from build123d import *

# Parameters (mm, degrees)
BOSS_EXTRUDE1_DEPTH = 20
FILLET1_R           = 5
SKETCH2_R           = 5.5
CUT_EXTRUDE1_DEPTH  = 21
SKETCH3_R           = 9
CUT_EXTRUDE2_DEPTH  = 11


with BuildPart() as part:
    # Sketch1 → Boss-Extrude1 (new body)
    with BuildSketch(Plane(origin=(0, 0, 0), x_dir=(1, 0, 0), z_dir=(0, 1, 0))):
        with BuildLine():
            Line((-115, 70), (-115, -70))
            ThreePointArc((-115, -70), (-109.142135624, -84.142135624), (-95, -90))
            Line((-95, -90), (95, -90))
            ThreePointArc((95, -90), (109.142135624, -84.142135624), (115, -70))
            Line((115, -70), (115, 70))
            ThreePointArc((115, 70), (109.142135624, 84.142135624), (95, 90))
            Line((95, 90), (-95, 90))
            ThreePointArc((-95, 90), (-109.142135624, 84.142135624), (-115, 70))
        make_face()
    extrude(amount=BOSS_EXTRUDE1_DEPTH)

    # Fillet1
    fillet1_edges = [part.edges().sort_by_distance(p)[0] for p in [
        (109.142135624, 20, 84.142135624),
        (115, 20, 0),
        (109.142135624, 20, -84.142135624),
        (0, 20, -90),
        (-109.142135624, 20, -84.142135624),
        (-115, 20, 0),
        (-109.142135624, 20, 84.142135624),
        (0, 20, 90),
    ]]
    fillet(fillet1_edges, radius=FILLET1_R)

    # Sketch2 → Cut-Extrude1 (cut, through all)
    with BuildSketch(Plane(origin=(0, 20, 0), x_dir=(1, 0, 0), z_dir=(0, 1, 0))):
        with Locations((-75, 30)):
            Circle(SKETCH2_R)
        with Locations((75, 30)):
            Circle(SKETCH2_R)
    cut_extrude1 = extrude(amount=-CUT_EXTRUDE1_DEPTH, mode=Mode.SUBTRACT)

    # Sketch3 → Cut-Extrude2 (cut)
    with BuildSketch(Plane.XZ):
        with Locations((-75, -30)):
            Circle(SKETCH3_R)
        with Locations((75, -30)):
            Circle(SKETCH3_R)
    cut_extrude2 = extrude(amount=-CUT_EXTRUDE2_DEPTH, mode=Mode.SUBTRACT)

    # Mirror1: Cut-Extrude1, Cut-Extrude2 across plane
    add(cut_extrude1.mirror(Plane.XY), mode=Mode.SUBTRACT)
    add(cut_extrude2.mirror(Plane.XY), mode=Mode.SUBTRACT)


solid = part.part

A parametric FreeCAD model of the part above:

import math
import FreeCAD as App
import Part
import Sketcher
Q = App.Units.Quantity


def edges_at(feature, points):
    """Names of the edges that pass closest to the given points."""
    edges = feature.Shape.Edges
    near = lambda p: min(range(len(edges)), key=lambda i: edges[i].distToShape(Part.Vertex(*p))[0])
    return sorted({f"Edge{near(p) + 1}" for p in points})

doc = App.newDocument("Part")
body = doc.addObject("PartDesign::Body", "Body")

sketch1 = body.newObject("Sketcher::SketchObject", "Sketch")
sketch1.AttachmentSupport = (doc.getObject("XZ_Plane"), [""])
sketch1.MapMode = "FlatFace"
sketch1.addGeometry([
    Part.LineSegment(App.Vector(-115, -70, 0), App.Vector(-115, 70, 0)),
    Part.ArcOfCircle(Part.Circle(App.Vector(-95, 70, 0), App.Vector(0, 0, 1), 20), math.radians(90), math.radians(180)),
    Part.LineSegment(App.Vector(-95, 90, 0), App.Vector(95, 90, 0)),
    Part.ArcOfCircle(Part.Circle(App.Vector(95, 70, 0), App.Vector(0, 0, 1), 20), math.radians(0), math.radians(90)),
    Part.LineSegment(App.Vector(115, 70, 0), App.Vector(115, -70, 0)),
    Part.ArcOfCircle(Part.Circle(App.Vector(95, -70, 0), App.Vector(0, 0, 1), 20), math.radians(-90), math.radians(0)),
    Part.LineSegment(App.Vector(95, -90, 0), App.Vector(-95, -90, 0)),
    Part.ArcOfCircle(Part.Circle(App.Vector(-95, -70, 0), App.Vector(0, 0, 1), 20), math.radians(180), math.radians(270)),
], False)
sketch1.addConstraint([
    Sketcher.Constraint("Tangent", 0, 2, 1, 2),
    Sketcher.Constraint("Tangent", 1, 1, 2, 1),
    Sketcher.Constraint("Tangent", 2, 2, 3, 2),
    Sketcher.Constraint("Tangent", 3, 1, 4, 1),
    Sketcher.Constraint("Tangent", 4, 2, 5, 2),
    Sketcher.Constraint("Tangent", 5, 1, 6, 1),
    Sketcher.Constraint("Tangent", 6, 2, 7, 2),
    Sketcher.Constraint("Tangent", 7, 1, 0, 1),
    Sketcher.Constraint("Vertical", 0),
    Sketcher.Constraint("Horizontal", 2),
    Sketcher.Constraint("Vertical", 4),
    Sketcher.Constraint("Horizontal", 6),
    Sketcher.Constraint("Equal", 1, 3),
    Sketcher.Constraint("Equal", 3, 5),
    Sketcher.Constraint("Equal", 5, 7),
    Sketcher.Constraint("Symmetric", 1, 3, 5, 3, -1, 1),
    Sketcher.Constraint("Radius", 1, Q("20 mm")),
    Sketcher.Constraint("DistanceX", 2, 1, 2, 2, Q("190 mm")),
    Sketcher.Constraint("DistanceY", 0, 1, 0, 2, Q("140 mm")),
])
pad1 = body.newObject("PartDesign::Pad", "Pad")
pad1.Profile = sketch1
pad1.Length = 20
pad1.Reversed = True
doc.recompute()

fillet = body.newObject("PartDesign::Fillet", "Fillet")
fillet.Base = (pad1, edges_at(pad1, [
    (109.142, 20, 84.142),
    (115, 20, 0),
    (109.142, 20, -84.142),
    (0, 20, -90),
    (-109.142, 20, -84.142),
    (-115, 20, 0),
    (-109.142, 20, 84.142),
    (0, 20, 90),
]))
fillet.Radius = 5

sketch2 = body.newObject("Sketcher::SketchObject", "Sketch001")
sketch2.AttachmentSupport = (doc.getObject("XZ_Plane"), [""])
sketch2.MapMode = "FlatFace"
sketch2.AttachmentOffset = App.Placement(App.Vector(0, 0, -20), App.Rotation())
sketch2.addGeometry([
    Part.Circle(App.Vector(-75, -30, 0), App.Vector(0, 0, 1), 5.5),
    Part.Circle(App.Vector(75, -30, 0), App.Vector(0, 0, 1), 5.5),
], False)
sketch2.addConstraint([
    Sketcher.Constraint("Equal", 0, 1),
    Sketcher.Constraint("Symmetric", 0, 3, 1, 3, -2),
    Sketcher.Constraint("Diameter", 0, Q("11 mm")),
    Sketcher.Constraint("DistanceX", 0, 3, -1, 1, Q("75 mm")),
    Sketcher.Constraint("DistanceY", 0, 3, -1, 1, Q("30 mm")),
])
pocket1 = body.newObject("PartDesign::Pocket", "Pocket")
pocket1.Profile = sketch2
pocket1.Type = "ThroughAll"
pocket1.Reversed = True

sketch3 = body.newObject("Sketcher::SketchObject", "Sketch002")
sketch3.AttachmentSupport = (doc.getObject("XZ_Plane"), [""])
sketch3.MapMode = "FlatFace"
sketch3.addGeometry([
    Part.Circle(App.Vector(-75, -30, 0), App.Vector(0, 0, 1), 9),
    Part.Circle(App.Vector(75, -30, 0), App.Vector(0, 0, 1), 9),
], False)
sketch3.addConstraint([
    Sketcher.Constraint("Equal", 0, 1),
    Sketcher.Constraint("Symmetric", 0, 3, 1, 3, -2),
    Sketcher.Constraint("Diameter", 0, Q("18 mm")),
    Sketcher.Constraint("DistanceX", 0, 3, -1, 1, Q("75 mm")),
    Sketcher.Constraint("DistanceY", 0, 3, -1, 1, Q("30 mm")),
])
pocket2 = body.newObject("PartDesign::Pocket", "Pocket001")
pocket2.Profile = sketch3
pocket2.Length = 11
doc.recompute()

mirrored = body.newObject("PartDesign::Mirrored", "Mirrored")
mirrored.Originals = [pocket1, pocket2]
mirrored.MirrorPlane = (doc.getObject("XY_Plane"), [""])
body.Tip = mirrored

doc.recompute()
